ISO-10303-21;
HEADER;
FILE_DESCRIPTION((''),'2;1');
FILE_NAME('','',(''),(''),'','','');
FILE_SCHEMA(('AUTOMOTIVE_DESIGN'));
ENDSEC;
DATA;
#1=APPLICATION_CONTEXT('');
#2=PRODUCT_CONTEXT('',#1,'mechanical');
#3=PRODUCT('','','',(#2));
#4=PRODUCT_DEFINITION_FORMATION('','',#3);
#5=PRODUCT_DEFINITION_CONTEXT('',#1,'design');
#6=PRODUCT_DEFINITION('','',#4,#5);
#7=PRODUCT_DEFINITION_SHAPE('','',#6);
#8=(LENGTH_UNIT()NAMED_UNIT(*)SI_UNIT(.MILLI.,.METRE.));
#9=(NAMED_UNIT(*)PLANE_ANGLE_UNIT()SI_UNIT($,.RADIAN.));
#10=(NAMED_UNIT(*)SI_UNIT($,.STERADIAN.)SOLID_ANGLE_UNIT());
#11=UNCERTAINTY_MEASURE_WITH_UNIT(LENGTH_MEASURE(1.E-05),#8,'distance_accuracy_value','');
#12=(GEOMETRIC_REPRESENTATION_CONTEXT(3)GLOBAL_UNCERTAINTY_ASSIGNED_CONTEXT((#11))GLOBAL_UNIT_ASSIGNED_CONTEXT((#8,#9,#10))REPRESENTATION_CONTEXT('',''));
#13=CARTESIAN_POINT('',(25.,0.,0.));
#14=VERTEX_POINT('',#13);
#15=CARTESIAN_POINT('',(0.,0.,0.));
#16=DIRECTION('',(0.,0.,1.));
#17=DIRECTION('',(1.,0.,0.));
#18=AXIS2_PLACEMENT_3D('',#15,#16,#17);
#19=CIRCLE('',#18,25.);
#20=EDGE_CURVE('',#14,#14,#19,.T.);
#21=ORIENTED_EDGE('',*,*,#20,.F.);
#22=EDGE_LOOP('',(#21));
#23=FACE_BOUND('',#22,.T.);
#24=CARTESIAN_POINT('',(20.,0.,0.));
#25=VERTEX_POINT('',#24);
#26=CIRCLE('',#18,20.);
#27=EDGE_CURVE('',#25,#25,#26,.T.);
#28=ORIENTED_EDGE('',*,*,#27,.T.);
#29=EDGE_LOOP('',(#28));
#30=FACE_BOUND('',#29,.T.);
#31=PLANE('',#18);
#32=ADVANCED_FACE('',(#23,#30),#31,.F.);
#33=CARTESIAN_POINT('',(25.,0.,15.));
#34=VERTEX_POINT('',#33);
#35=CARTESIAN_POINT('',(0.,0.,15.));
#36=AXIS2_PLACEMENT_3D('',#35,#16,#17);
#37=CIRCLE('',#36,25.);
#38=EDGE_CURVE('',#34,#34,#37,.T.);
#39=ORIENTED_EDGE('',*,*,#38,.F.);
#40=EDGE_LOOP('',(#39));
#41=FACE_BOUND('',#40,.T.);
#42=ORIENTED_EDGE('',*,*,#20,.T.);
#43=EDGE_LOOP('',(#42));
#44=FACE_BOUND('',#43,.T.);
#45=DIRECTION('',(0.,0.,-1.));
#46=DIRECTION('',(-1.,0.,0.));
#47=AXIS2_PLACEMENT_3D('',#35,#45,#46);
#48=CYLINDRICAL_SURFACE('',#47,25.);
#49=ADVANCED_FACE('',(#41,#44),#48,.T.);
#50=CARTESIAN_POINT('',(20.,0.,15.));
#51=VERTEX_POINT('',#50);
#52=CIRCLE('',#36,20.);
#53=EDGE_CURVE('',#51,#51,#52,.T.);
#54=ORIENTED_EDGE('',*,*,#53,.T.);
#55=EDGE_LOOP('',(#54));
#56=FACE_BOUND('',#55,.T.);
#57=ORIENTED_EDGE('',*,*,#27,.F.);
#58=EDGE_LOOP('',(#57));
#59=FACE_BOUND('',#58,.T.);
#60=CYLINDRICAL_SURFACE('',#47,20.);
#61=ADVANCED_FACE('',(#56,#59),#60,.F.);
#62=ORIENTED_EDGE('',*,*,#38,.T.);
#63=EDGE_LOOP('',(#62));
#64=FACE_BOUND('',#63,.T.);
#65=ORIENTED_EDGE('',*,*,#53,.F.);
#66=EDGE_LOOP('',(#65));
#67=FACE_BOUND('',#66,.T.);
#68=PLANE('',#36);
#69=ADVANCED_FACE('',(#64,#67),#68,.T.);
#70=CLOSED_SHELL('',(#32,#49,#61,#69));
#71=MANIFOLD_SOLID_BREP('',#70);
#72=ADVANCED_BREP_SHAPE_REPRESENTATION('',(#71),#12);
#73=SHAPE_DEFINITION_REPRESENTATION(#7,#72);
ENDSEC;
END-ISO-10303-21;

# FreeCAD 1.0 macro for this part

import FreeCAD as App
import Part
import Sketcher
from FreeCAD import Vector

doc = App.newDocument("Part")
body = doc.addObject("PartDesign::Body", "Body")

# Sketch on XY plane
sketch1 = body.newObject("Sketcher::SketchObject", "Sketch")
sketch1.AttachmentSupport = (doc.getObject("XY_Plane"), [""])
sketch1.MapMode = "FlatFace"
sketch1.addGeometry([
    Part.Circle(Vector(0, 0, 0), Vector(0, 0, 1), 25),
    Part.Circle(Vector(0, 0, 0), Vector(0, 0, 1), 20),
], False)
sketch1.addConstraint([
    Sketcher.Constraint("Coincident", 0, 3, -1, 1),
    Sketcher.Constraint("Coincident", 1, 3, -1, 1),
    Sketcher.Constraint("Diameter", 0, 50.0),
    Sketcher.Constraint("Diameter", 1, 40.0),
])
pad1 = body.newObject("PartDesign::Pad", "Pad")
pad1.Profile = sketch1
pad1.Length = 15

doc.recompute()
